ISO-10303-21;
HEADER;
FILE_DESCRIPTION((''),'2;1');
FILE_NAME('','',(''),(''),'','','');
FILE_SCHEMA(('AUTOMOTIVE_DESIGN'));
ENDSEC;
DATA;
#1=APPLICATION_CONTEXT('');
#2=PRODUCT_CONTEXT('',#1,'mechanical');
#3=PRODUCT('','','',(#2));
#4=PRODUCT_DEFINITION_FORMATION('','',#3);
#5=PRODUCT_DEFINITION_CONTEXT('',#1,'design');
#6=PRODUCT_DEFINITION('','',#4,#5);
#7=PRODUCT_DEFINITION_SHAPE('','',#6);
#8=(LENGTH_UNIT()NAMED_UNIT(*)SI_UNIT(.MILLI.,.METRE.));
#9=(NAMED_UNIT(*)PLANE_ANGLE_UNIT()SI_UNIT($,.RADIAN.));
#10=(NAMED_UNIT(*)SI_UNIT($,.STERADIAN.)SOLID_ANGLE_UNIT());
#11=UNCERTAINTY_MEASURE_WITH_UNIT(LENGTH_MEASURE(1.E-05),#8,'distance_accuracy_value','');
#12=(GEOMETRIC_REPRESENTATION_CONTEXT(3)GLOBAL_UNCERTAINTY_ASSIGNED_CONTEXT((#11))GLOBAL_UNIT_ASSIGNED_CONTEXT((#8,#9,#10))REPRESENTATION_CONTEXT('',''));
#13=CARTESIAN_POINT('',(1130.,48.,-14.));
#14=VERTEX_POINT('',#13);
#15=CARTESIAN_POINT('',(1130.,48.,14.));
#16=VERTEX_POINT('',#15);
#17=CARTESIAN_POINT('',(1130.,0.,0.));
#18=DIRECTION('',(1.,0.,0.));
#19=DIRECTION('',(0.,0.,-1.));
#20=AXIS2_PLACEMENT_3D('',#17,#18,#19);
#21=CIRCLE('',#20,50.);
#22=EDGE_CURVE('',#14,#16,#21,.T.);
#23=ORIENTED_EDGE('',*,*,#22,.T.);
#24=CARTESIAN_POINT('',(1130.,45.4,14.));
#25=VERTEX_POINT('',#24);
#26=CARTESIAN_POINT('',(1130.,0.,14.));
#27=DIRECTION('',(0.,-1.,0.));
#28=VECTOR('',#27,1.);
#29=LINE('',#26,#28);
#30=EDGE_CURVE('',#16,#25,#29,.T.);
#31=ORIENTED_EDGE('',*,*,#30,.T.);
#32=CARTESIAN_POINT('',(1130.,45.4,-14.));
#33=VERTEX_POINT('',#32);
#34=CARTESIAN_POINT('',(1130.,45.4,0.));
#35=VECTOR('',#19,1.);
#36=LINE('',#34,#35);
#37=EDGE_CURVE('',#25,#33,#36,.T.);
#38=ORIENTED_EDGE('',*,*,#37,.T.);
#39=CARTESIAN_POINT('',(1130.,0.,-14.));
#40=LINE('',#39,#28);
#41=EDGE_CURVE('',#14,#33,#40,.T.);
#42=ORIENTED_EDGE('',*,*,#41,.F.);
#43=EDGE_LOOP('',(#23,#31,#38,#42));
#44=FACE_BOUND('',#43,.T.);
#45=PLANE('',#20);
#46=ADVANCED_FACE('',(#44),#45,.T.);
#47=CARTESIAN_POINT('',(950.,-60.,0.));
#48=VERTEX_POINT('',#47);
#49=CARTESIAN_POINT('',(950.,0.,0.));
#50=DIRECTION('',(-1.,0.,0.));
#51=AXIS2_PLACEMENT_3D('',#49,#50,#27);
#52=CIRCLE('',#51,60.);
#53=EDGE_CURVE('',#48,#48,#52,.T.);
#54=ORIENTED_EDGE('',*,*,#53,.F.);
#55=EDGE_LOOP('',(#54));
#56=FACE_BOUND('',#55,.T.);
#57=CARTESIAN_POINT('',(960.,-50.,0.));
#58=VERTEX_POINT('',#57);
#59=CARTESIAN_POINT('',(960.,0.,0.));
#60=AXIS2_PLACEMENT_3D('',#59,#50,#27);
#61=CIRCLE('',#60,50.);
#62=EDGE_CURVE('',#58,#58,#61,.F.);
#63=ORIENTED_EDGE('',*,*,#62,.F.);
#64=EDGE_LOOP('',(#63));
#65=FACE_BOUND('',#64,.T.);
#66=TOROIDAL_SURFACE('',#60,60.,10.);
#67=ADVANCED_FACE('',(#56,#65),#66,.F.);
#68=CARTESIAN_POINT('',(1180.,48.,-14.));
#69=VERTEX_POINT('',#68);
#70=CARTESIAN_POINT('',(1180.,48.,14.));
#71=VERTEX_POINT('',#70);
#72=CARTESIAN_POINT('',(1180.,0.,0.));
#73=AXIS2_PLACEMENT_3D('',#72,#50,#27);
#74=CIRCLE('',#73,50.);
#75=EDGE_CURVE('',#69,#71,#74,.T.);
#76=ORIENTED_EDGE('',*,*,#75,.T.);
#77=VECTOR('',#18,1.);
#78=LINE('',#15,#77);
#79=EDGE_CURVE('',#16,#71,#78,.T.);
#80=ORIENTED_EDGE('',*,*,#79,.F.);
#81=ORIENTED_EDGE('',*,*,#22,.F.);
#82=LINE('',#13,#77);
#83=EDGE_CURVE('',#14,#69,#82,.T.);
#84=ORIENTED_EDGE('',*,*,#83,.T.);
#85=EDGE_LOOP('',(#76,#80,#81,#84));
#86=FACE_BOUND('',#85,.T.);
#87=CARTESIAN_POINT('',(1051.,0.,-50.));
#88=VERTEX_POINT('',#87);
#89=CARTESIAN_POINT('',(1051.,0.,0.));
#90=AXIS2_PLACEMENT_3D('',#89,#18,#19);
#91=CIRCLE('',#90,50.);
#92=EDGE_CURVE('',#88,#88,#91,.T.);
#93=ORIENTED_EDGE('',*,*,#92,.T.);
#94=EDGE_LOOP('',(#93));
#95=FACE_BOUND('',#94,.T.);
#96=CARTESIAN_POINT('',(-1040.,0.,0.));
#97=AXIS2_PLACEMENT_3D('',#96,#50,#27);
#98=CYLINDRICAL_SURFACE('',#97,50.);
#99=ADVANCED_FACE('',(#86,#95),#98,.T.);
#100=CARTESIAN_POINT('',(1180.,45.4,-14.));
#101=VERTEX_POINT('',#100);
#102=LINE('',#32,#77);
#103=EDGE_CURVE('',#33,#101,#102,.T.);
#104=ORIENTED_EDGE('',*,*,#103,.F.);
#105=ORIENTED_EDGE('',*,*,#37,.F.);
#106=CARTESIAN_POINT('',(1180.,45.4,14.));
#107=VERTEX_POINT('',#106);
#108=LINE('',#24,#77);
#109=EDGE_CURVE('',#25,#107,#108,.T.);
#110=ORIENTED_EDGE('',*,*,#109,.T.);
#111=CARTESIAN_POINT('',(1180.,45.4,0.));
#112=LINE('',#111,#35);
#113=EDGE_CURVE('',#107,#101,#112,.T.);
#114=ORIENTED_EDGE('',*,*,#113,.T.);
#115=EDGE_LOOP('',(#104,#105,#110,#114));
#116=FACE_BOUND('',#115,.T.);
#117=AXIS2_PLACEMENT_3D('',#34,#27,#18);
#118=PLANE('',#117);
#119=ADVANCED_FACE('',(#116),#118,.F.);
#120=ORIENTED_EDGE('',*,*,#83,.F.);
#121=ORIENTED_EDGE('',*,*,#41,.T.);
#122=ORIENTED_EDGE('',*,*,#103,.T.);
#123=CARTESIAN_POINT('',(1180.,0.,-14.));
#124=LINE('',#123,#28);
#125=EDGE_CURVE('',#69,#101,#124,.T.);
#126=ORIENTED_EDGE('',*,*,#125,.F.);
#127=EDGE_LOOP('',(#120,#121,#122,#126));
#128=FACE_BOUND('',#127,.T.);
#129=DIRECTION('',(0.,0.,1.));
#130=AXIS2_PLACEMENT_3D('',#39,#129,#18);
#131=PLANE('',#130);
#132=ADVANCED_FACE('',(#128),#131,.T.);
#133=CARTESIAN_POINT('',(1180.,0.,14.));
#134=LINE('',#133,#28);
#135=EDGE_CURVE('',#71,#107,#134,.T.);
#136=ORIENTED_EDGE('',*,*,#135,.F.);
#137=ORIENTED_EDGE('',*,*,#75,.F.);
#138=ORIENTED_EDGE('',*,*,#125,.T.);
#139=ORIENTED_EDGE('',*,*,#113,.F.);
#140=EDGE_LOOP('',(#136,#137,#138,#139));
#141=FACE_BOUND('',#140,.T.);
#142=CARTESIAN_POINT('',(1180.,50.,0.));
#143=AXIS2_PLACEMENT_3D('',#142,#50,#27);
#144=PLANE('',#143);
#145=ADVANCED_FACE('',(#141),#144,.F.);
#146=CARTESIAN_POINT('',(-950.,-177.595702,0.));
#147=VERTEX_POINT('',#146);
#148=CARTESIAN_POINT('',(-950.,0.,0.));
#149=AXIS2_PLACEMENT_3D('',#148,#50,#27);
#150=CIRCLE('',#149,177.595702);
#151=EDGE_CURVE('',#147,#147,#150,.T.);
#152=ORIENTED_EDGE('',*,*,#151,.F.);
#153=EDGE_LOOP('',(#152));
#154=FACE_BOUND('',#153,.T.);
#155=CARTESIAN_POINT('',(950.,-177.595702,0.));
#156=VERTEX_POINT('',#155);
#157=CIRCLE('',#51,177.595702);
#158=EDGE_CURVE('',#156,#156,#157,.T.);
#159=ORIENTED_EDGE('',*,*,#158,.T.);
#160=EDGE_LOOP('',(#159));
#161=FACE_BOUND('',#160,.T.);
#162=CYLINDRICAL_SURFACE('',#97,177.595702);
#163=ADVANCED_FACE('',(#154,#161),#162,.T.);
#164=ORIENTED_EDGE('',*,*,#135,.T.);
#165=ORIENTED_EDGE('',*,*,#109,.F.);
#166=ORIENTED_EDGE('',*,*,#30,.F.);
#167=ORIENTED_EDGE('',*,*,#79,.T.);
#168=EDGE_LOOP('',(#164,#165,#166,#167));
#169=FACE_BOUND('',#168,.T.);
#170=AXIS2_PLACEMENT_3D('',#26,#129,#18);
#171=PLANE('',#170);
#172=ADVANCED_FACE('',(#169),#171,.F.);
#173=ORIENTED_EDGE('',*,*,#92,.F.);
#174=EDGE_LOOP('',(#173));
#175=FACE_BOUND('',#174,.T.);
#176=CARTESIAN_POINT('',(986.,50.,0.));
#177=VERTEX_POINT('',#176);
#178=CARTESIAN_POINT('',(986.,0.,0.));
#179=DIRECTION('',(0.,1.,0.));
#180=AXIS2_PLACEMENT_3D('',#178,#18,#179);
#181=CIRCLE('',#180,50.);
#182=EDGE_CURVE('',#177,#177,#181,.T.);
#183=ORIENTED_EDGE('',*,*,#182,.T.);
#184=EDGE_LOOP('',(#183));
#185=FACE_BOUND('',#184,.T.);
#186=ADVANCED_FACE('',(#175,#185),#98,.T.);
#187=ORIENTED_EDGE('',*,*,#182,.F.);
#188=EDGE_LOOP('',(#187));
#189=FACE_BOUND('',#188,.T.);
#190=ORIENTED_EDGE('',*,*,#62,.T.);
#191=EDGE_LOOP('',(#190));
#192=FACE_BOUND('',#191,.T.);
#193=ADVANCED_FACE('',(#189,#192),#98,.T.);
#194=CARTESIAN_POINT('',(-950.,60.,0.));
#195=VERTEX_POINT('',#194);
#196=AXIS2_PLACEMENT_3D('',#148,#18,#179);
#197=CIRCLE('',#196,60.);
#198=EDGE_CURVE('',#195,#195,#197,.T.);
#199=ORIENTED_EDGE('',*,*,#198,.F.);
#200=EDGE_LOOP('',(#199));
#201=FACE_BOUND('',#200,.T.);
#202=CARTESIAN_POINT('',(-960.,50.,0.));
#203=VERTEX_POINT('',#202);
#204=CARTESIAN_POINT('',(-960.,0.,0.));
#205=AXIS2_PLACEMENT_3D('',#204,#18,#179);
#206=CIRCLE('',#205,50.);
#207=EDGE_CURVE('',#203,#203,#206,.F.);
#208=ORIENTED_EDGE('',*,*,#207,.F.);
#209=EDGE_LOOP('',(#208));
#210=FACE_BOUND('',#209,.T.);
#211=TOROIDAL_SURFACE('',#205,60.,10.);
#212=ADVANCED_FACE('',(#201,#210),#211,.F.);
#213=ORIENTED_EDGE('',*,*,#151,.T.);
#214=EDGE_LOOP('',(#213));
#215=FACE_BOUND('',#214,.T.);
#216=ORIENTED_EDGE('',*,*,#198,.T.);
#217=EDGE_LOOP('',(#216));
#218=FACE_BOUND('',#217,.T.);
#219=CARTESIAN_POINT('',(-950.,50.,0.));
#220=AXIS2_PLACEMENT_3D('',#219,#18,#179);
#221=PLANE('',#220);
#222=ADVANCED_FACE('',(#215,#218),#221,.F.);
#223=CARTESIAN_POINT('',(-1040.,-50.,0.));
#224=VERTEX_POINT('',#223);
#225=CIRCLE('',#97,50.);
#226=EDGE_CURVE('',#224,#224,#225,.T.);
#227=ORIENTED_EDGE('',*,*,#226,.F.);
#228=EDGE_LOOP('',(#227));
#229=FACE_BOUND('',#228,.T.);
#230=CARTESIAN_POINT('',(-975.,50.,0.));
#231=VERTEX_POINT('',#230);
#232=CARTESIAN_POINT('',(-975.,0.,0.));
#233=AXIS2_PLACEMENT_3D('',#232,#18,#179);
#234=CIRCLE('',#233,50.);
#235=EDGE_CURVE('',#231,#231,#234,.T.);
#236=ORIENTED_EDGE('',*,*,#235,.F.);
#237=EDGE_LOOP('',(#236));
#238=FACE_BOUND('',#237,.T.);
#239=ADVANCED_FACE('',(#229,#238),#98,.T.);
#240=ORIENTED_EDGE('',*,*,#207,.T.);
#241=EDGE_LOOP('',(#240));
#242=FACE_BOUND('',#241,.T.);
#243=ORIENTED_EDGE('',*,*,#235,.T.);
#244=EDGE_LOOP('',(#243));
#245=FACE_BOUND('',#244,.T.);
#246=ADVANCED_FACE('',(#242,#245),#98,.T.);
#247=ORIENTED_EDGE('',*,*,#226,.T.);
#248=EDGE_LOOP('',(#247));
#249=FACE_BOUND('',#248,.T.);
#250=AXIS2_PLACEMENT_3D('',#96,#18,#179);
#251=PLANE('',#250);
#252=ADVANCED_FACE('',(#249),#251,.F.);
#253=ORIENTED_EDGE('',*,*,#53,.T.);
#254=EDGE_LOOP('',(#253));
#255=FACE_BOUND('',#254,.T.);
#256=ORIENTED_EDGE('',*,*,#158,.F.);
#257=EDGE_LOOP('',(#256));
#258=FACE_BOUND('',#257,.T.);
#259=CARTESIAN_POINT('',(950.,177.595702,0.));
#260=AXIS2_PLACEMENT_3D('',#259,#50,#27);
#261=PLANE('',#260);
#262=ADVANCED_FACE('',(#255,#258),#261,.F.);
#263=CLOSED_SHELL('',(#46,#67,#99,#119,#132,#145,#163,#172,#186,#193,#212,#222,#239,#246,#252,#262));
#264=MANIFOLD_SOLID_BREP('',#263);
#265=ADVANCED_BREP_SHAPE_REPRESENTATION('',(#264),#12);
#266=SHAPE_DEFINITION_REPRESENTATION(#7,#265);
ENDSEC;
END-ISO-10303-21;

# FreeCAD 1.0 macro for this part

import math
import FreeCAD as App
import Part
import Sketcher

V = App.Vector


def edges_at(feature, points):
    """Names of the edges that pass closest to the given points."""
    edges = feature.Shape.Edges
    near = lambda p: min(range(len(edges)), key=lambda i: edges[i].distToShape(Part.Vertex(*p))[0])
    return sorted({f"Edge{near(p) + 1}" for p in points})

doc = App.newDocument("Part")
body = doc.addObject("PartDesign::Body", "Body")

# Sketch on XY plane
sketch1 = body.newObject("Sketcher::SketchObject", "Sketch")
sketch1.AttachmentSupport = (doc.getObject("XY_Plane"), [""])
sketch1.MapMode = "FlatFace"
sketch1.addGeometry([
    Part.LineSegment(V(-1040, 0, 0), V(1180, 0, 0)),  # 0
    Part.LineSegment(V(1180, 0, 0), V(1180, 50, 0)),  # 1
    Part.LineSegment(V(1180, 50, 0), V(950, 50, 0)),  # 2
    Part.LineSegment(V(950, 50, 0), V(950, 177.595702, 0)),  # 3
    Part.LineSegment(V(950, 177.595702, 0), V(-950, 177.595702, 0)),  # 4
    Part.LineSegment(V(-950, 177.595702, 0), V(-950, 50, 0)),  # 5
    Part.LineSegment(V(-950, 50, 0), V(-1040, 50, 0)),  # 6
    Part.LineSegment(V(-1040, 50, 0), V(-1040, 0, 0)),  # 7
], False)
sketch1.addConstraint([
    Sketcher.Constraint("Coincident", 0, 2, 1, 1),
    Sketcher.Constraint("Coincident", 1, 2, 2, 1),
    Sketcher.Constraint("Coincident", 2, 2, 3, 1),
    Sketcher.Constraint("Coincident", 3, 2, 4, 1),
    Sketcher.Constraint("Coincident", 4, 2, 5, 1),
    Sketcher.Constraint("Coincident", 5, 2, 6, 1),
    Sketcher.Constraint("Coincident", 6, 2, 7, 1),
    Sketcher.Constraint("Coincident", 7, 2, 0, 1),
    Sketcher.Constraint("Horizontal", 0),
    Sketcher.Constraint("Vertical", 1),
    Sketcher.Constraint("Horizontal", 2),
    Sketcher.Constraint("Vertical", 3),
    Sketcher.Constraint("Horizontal", 4),
    Sketcher.Constraint("Vertical", 5),
    Sketcher.Constraint("Horizontal", 6),
    Sketcher.Constraint("Vertical", 7),
    Sketcher.Constraint("Symmetric", 2, 2, 5, 2, -2),
    Sketcher.Constraint("PointOnObject", 0, 2, -1),
    Sketcher.Constraint("DistanceX", 0, 1, 0, 2, 2220.0),
    Sketcher.Constraint("DistanceX", 2, 2, 2, 1, 230.0),
    Sketcher.Constraint("DistanceX", 4, 2, 4, 1, 1900.0),
    Sketcher.Constraint("DistanceY", 1, 1, 1, 2, 50.0),
    Sketcher.Constraint("DistanceY", 3, 1, 3, 2, 127.595702),
])
revolution = body.newObject("PartDesign::Revolution", "Revolution")
revolution.Profile = sketch1
revolution.ReferenceAxis = (sketch1, ["H_Axis"])
revolution.Angle = 360
doc.recompute()

fillet = body.newObject("PartDesign::Fillet", "Fillet")
fillet.Base = (revolution, edges_at(revolution, [(950, 50, 0), (-950, 50, 0)]))
fillet.Radius = 10

# Sketch on YZ plane
sketch2 = body.newObject("Sketcher::SketchObject", "Sketch001")
sketch2.AttachmentSupport = (doc.getObject("YZ_Plane"), [""])
sketch2.MapMode = "FlatFace"
sketch2.AttachmentOffset = App.Placement(V(0, 0, 1130), App.Rotation())
sketch2.addGeometry([
    Part.ArcOfCircle(Part.Circle(V(0, 0, 0), V(0, 0, 1), 50), math.radians(-16.260205), math.radians(16.260205)),
    Part.LineSegment(V(48, 14, 0), V(45.4, 14, 0)),
    Part.LineSegment(V(45.4, 14, 0), V(45.4, -14, 0)),
    Part.LineSegment(V(45.4, -14, 0), V(48, -14, 0)),
], False)
sketch2.addConstraint([
    Sketcher.Constraint("Coincident", 0, 2, 1, 1),
    Sketcher.Constraint("Coincident", 1, 2, 2, 1),
    Sketcher.Constraint("Coincident", 2, 2, 3, 1),
    Sketcher.Constraint("Coincident", 3, 2, 0, 1),
    Sketcher.Constraint("Horizontal", 1),
    Sketcher.Constraint("Vertical", 2),
    Sketcher.Constraint("Horizontal", 3),
    Sketcher.Constraint("Coincident", 0, 3, -1, 1),
    Sketcher.Constraint("Vertical", 0, 2, 3, 2),
    Sketcher.Constraint("Radius", 0, 50.0),
    Sketcher.Constraint("DistanceY", 2, 2, 2, 1, 28.0),
    Sketcher.Constraint("DistanceX", 1, 2, 1, 1, 2.6),
])
pocket1 = body.newObject("PartDesign::Pocket", "Pocket")
pocket1.Profile = sketch2
pocket1.Length = 50
pocket1.Reversed = True

doc.recompute()
